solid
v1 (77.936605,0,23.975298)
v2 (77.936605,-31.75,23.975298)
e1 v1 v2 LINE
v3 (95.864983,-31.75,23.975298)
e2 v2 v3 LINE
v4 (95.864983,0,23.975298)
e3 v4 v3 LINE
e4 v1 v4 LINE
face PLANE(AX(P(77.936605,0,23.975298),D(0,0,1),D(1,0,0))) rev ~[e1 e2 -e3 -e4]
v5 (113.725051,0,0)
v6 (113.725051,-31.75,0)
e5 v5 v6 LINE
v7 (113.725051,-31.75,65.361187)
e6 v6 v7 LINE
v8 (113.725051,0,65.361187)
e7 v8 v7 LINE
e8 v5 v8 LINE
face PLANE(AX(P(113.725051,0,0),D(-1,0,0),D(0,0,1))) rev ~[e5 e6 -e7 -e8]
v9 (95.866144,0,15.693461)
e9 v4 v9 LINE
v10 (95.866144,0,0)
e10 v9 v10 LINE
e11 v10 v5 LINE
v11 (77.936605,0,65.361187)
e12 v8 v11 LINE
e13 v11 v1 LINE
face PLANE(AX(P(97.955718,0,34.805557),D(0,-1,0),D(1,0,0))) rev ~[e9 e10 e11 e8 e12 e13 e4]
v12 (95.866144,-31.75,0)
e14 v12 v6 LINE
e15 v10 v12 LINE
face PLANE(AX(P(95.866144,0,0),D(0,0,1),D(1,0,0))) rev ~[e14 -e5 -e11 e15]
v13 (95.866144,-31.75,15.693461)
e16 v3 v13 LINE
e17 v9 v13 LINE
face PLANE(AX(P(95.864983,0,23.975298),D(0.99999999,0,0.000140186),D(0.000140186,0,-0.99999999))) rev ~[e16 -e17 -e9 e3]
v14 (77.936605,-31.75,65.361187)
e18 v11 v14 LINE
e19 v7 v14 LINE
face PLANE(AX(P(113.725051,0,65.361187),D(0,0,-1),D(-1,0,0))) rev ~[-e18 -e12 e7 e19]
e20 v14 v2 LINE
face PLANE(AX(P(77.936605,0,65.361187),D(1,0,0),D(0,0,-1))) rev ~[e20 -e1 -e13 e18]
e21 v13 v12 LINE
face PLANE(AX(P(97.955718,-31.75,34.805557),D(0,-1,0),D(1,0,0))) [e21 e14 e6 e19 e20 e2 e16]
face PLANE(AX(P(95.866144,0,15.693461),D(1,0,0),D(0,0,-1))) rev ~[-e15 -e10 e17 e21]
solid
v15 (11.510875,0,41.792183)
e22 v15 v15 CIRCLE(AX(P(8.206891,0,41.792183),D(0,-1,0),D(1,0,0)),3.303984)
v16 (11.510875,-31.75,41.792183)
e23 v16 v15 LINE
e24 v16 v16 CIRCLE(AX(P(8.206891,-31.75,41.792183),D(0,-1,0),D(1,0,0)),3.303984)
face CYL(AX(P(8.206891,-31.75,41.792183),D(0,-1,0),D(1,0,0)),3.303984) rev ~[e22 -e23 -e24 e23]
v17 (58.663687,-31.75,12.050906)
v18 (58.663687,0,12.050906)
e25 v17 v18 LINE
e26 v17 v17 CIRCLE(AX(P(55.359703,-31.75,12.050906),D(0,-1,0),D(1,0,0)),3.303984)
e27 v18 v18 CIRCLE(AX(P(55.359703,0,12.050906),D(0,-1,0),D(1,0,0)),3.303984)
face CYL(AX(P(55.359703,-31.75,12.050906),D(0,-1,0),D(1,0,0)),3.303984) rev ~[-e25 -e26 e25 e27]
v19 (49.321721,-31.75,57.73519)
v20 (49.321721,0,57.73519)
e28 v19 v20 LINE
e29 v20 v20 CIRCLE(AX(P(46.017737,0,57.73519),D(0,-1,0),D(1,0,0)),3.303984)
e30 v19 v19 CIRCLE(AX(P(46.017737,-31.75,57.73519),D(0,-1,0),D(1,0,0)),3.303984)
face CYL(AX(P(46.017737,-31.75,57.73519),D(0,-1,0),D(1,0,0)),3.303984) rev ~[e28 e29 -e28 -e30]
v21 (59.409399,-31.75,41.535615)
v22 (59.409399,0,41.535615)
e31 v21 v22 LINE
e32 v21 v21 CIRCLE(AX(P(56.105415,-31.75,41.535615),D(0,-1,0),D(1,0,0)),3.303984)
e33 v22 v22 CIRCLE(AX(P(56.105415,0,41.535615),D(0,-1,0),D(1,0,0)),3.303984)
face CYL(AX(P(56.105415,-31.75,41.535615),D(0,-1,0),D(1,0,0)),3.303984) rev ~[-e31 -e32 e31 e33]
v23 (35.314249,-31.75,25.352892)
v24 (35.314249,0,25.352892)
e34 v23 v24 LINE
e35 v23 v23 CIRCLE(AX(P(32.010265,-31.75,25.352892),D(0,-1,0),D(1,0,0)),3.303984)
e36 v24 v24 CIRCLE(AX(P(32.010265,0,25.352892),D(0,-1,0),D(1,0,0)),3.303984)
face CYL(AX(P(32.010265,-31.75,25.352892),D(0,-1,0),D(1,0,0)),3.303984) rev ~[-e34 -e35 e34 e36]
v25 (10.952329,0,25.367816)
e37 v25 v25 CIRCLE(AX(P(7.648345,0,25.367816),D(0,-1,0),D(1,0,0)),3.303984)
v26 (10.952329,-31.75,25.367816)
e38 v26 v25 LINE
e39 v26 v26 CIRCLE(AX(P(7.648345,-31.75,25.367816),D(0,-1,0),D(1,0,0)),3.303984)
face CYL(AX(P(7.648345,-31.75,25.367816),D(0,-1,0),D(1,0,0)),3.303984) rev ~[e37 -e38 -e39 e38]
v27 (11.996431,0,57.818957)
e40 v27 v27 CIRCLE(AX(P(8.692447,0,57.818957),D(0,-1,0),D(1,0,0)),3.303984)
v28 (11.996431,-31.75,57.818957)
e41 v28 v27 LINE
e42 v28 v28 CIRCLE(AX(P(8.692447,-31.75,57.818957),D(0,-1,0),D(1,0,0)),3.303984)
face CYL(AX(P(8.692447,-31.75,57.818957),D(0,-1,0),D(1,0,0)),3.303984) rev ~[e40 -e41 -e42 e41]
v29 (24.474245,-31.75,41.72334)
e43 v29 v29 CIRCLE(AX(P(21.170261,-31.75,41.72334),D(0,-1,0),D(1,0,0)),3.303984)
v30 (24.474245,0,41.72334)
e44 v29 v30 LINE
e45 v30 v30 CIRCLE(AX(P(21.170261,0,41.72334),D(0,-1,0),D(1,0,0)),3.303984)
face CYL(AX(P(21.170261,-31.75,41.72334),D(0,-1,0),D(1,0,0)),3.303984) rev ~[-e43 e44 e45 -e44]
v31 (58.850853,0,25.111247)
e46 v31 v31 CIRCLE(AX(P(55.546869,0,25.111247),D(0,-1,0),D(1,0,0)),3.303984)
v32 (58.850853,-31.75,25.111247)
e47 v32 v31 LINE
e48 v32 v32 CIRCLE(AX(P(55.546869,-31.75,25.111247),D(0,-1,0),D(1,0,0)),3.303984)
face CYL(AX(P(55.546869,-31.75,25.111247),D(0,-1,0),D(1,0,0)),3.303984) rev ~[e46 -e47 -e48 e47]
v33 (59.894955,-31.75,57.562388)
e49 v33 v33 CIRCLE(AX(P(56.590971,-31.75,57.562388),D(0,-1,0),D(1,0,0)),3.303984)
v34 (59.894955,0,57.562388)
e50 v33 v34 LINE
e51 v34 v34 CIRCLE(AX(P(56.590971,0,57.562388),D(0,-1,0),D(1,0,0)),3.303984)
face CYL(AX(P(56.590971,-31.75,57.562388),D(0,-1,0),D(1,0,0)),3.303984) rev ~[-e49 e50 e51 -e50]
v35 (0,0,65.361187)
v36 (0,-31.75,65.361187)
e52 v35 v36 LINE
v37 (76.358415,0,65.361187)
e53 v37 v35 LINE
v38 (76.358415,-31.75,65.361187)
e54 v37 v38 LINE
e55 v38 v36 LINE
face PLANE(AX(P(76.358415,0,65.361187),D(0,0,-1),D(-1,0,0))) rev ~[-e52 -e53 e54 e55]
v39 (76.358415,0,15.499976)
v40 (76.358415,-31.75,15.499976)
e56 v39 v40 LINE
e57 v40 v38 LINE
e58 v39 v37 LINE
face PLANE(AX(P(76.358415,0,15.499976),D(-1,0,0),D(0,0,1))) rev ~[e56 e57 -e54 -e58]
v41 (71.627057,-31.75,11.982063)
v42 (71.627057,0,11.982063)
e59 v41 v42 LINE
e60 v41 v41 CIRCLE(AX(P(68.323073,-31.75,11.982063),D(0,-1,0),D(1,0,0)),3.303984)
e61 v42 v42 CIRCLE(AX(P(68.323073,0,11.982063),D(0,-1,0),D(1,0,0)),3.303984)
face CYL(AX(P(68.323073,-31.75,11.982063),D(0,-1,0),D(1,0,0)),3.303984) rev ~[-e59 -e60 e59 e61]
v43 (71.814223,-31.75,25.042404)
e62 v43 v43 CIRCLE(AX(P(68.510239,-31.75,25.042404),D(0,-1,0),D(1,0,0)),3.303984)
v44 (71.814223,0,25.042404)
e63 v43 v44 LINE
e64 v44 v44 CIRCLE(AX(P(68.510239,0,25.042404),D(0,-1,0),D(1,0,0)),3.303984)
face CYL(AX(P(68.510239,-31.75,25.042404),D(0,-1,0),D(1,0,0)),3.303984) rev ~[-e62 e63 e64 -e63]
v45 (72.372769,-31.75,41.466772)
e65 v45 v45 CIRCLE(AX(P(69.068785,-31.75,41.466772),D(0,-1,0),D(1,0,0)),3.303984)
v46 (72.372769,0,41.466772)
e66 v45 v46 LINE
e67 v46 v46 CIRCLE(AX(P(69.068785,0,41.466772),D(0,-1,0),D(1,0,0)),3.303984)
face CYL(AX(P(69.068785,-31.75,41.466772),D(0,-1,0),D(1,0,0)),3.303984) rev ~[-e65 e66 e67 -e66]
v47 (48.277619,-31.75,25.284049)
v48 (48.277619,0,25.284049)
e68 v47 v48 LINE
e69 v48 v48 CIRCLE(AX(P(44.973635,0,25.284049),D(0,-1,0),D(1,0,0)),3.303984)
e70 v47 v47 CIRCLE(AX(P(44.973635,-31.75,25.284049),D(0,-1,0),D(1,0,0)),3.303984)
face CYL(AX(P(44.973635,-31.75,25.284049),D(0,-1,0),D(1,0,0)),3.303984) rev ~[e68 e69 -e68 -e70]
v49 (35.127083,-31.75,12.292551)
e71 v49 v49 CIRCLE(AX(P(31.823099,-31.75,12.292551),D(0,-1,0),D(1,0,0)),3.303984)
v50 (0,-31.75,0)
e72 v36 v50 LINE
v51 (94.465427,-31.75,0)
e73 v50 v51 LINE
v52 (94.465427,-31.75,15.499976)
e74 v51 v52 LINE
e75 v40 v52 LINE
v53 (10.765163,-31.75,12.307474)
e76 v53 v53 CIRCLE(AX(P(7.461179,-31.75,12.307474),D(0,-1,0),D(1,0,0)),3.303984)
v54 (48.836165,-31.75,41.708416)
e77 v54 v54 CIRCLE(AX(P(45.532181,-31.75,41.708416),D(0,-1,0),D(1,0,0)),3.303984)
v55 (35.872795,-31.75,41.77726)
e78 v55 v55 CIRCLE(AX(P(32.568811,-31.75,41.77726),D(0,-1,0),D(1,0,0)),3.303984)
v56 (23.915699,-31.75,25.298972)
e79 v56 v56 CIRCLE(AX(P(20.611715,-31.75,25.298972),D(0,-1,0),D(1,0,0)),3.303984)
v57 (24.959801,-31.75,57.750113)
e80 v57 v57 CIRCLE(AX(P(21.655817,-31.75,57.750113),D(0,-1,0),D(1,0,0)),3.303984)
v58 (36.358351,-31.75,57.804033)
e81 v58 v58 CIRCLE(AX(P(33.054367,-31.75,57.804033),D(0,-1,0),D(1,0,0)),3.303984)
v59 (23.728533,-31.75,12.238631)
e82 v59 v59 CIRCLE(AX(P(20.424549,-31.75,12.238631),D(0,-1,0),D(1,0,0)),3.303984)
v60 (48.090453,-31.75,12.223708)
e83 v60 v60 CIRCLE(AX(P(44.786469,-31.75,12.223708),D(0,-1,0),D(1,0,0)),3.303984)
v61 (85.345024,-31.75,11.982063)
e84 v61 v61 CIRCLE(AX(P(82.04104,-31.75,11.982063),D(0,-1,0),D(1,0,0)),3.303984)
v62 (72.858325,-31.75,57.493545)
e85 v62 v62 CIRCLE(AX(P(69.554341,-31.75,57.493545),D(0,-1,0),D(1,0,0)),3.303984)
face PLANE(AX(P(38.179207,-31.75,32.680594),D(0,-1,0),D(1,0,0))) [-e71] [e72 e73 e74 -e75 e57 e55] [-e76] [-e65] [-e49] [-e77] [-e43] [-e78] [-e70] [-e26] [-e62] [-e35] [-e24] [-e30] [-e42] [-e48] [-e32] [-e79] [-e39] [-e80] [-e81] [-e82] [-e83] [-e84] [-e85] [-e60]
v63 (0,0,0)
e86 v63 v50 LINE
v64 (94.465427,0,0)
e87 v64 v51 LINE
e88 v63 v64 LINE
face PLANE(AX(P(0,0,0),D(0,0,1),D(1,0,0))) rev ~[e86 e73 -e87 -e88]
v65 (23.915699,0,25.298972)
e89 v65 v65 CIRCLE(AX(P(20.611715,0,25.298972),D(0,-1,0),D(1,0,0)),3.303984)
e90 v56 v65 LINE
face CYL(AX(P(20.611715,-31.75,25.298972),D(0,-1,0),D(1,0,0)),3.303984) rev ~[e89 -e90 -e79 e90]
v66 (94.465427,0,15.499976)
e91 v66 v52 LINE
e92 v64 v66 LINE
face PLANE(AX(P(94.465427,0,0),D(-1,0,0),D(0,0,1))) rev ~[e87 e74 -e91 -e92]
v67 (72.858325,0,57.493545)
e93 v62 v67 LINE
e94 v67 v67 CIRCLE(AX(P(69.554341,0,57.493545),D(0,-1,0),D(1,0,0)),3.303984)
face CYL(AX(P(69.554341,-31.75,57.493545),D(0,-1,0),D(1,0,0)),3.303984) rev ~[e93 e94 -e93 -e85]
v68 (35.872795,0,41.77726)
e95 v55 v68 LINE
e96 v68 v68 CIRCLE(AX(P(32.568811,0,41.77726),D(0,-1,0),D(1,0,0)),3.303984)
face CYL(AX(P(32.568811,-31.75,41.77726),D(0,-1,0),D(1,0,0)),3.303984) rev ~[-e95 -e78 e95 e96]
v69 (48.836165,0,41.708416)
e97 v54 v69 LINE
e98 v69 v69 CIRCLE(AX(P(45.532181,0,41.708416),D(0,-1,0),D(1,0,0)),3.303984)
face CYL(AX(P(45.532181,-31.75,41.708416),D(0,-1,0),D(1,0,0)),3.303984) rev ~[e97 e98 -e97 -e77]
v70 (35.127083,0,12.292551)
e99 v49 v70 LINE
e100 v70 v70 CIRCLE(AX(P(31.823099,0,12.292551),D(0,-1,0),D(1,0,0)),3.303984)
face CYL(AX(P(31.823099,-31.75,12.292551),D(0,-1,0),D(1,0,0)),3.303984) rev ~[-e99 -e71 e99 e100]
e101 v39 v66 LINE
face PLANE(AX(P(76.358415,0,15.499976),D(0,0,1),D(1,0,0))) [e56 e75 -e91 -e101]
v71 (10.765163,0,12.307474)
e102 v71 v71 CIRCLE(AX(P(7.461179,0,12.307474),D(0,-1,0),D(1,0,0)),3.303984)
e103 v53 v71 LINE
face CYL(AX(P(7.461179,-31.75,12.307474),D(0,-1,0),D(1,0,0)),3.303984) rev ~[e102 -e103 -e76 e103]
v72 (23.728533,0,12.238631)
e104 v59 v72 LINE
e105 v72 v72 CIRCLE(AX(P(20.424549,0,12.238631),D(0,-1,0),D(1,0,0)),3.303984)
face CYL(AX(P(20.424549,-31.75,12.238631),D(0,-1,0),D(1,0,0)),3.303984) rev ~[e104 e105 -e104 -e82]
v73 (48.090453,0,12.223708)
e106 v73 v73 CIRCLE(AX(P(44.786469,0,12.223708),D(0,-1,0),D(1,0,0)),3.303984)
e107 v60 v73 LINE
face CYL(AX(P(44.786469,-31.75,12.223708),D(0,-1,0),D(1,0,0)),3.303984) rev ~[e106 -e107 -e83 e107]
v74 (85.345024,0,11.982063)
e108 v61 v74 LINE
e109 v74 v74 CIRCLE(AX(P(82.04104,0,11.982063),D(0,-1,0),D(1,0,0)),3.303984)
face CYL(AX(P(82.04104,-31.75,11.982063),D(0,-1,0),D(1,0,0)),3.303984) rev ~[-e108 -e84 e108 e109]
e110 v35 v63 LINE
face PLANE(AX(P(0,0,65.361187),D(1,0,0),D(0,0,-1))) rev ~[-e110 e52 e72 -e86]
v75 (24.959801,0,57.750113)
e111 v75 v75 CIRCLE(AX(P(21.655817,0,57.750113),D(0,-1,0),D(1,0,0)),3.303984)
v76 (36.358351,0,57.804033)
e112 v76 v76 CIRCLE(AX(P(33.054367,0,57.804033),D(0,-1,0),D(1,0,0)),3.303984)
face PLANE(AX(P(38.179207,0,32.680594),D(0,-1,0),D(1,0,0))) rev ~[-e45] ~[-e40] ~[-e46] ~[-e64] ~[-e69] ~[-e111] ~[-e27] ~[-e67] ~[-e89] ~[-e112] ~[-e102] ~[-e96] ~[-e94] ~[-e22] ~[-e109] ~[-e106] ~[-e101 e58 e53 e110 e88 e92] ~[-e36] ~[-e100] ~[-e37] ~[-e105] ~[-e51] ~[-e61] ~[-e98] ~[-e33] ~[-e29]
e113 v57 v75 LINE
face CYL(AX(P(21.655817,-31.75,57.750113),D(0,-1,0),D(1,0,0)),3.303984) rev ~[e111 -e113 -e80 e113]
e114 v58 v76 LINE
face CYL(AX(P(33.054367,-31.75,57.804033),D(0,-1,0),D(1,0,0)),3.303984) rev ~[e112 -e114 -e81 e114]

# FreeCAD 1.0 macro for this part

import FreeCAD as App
import Part
import Sketcher

V = App.Vector
Q = App.Units.Quantity


def add_polygon(sketch, points):
    """Adds a closed chain of lines whose ends are joined by coincident constraints."""
    first, n = sketch.GeometryCount, len(points)
    for a, b in zip(points, points[1:] + points[:1]):
        sketch.addGeometry(Part.LineSegment(App.Vector(*a, 0), App.Vector(*b, 0)), False)
    for i in range(n):
        sketch.addConstraint(Sketcher.Constraint("Coincident", first + i, 2, first + (i + 1) % n, 1))

doc = App.newDocument("Part")
body = doc.addObject("PartDesign::Body", "Body")

# Sketch on XZ plane
sketch1 = body.newObject("Sketcher::SketchObject", "Sketch")
sketch1.AttachmentSupport = (doc.getObject("XZ_Plane"), [""])
sketch1.MapMode = "FlatFace"
add_polygon(sketch1, [(0, 65), (0, 0), (94, 0), (94, 15), (76, 15), (76, 65)])  # lines 0-5
sketch1.addConstraint([
    Sketcher.Constraint("Vertical", 0),
    Sketcher.Constraint("Horizontal", 1),
    Sketcher.Constraint("Vertical", 2),
    Sketcher.Constraint("Horizontal", 3),
    Sketcher.Constraint("Vertical", 4),
    Sketcher.Constraint("Horizontal", 5),
    Sketcher.Constraint("Coincident", 0, 2, -1, 1),
    Sketcher.Constraint("DistanceY", 4, 1, 4, 2, Q("49.861211 mm")),
    Sketcher.Constraint("DistanceX", 1, 1, 1, 2, Q("94.465427 mm")),
    Sketcher.Constraint("DistanceX", 3, 2, 3, 1, Q("18.107012 mm")),
    Sketcher.Constraint("DistanceY", 0, 2, 0, 1, Q("65.361187 mm")),
])
pad1 = body.newObject("PartDesign::Pad", "Pad")
pad1.Profile = sketch1
pad1.Length = Q("1.25 in")

# Sketch on XZ plane
sketch2 = body.newObject("Sketcher::SketchObject", "Sketch001")
sketch2.AttachmentSupport = (doc.getObject("XZ_Plane"), [""])
sketch2.MapMode = "FlatFace"
sketch2.AttachmentOffset = App.Placement(V(0, 0, 1.25 * 25.4), App.Rotation())
sketch2.addGeometry([
    Part.Circle(V(20.6, 25.3, 0), V(0, 0, 1), 3.3),  # 0
    Part.Circle(V(32, 25.4, 0), V(0, 0, 1), 3.3),  # 1
    Part.Circle(V(45, 25.3, 0), V(0, 0, 1), 3.3),  # 2
    Part.Circle(V(55.5, 25.1, 0), V(0, 0, 1), 3.3),  # 3
    Part.Circle(V(7.5, 12.3, 0), V(0, 0, 1), 3.3),  # 4
    Part.Circle(V(31.8, 12.3, 0), V(0, 0, 1), 3.3),  # 5
    Part.Circle(V(55.4, 12.1, 0), V(0, 0, 1), 3.3),  # 6
    Part.Circle(V(68.5, 25, 0), V(0, 0, 1), 3.3),  # 7
    Part.Circle(V(20.4, 12.2, 0), V(0, 0, 1), 3.3),  # 8
    Part.Circle(V(44.8, 12.2, 0), V(0, 0, 1), 3.3),  # 9
    Part.Circle(V(68.3, 12, 0), V(0, 0, 1), 3.3),  # 10
    Part.Circle(V(7.6, 25.4, 0), V(0, 0, 1), 3.3),  # 11
    Part.Circle(V(69.1, 41.5, 0), V(0, 0, 1), 3.3),  # 12
    Part.Circle(V(56.1, 41.5, 0), V(0, 0, 1), 3.3),  # 13
    Part.Circle(V(45.5, 41.7, 0), V(0, 0, 1), 3.3),  # 14
    Part.Circle(V(32.6, 41.8, 0), V(0, 0, 1), 3.3),  # 15
    Part.Circle(V(21.2, 41.7, 0), V(0, 0, 1), 3.3),  # 16
    Part.Circle(V(8.2, 41.8, 0), V(0, 0, 1), 3.3),  # 17
    Part.Circle(V(69.6, 57.5, 0), V(0, 0, 1), 3.3),  # 18
    Part.Circle(V(56.6, 57.6, 0), V(0, 0, 1), 3.3),  # 19
    Part.Circle(V(46, 57.7, 0), V(0, 0, 1), 3.3),  # 20
    Part.Circle(V(33.1, 57.8, 0), V(0, 0, 1), 3.3),  # 21
    Part.Circle(V(21.7, 57.8, 0), V(0, 0, 1), 3.3),  # 22
    Part.Circle(V(8.7, 57.8, 0), V(0, 0, 1), 3.3),  # 23
    Part.Circle(V(82, 12, 0), V(0, 0, 1), 3.3),  # 24
], False)
sketch2.addConstraint([
    Sketcher.Constraint("Equal", 0, 1),
    Sketcher.Constraint("Equal", 1, 2),
    Sketcher.Constraint("Equal", 2, 3),
    Sketcher.Constraint("Equal", 3, 4),
    Sketcher.Constraint("Equal", 4, 5),
    Sketcher.Constraint("Equal", 5, 6),
    Sketcher.Constraint("Equal", 6, 7),
    Sketcher.Constraint("Equal", 7, 8),
    Sketcher.Constraint("Equal", 8, 9),
    Sketcher.Constraint("Equal", 9, 10),
    Sketcher.Constraint("Equal", 10, 11),
    Sketcher.Constraint("Equal", 11, 12),
    Sketcher.Constraint("Equal", 12, 13),
    Sketcher.Constraint("Equal", 13, 14),
    Sketcher.Constraint("Equal", 14, 15),
    Sketcher.Constraint("Equal", 15, 16),
    Sketcher.Constraint("Equal", 16, 17),
    Sketcher.Constraint("Equal", 17, 18),
    Sketcher.Constraint("Equal", 18, 19),
    Sketcher.Constraint("Equal", 19, 20),
    Sketcher.Constraint("Equal", 20, 21),
    Sketcher.Constraint("Equal", 21, 22),
    Sketcher.Constraint("Equal", 22, 23),
    Sketcher.Constraint("Equal", 23, 24),
    Sketcher.Constraint("Horizontal", 10, 3, 24, 3),
    Sketcher.Constraint("DistanceX", 1, 3, 9, 3, Q("0.5030002 in")),
    Sketcher.Constraint("DistanceX", 3, 3, 10, 3, Q("0.5030002 in")),
    Sketcher.Constraint("DistanceX", 11, 3, 8, 3, Q("0.5030002 in")),
    Sketcher.Constraint("Diameter", 0, Q("6.607968 mm")),
    Sketcher.Constraint("DistanceX", -1, 1, 5, 3, Q("31.823099 mm")),
    Sketcher.Constraint("DistanceY", 6, 3, 7, 3, Q("12.991498 mm")),
    Sketcher.Constraint("DistanceX", 9, 3, 3, 3, Q("10.7604 mm")),
    Sketcher.Constraint("DistanceY", 13, 3, 14, 3, Q("0.172801 mm")),
    Sketcher.Constraint("DistanceX", 7, 3, 18, 3, Q("1.044102 mm")),
    Sketcher.Constraint("DistanceX", 7, 3, 24, 3, Q("13.530801 mm")),
    Sketcher.Constraint("DistanceY", -1, 1, 0, 3, Q("25.298972 mm")),
    Sketcher.Constraint("DistanceY", -1, 1, 2, 3, Q("25.284049 mm")),
    Sketcher.Constraint("DistanceX", -1, 1, 3, 3, Q("55.546869 mm")),
    Sketcher.Constraint("DistanceX", -1, 1, 4, 3, Q("7.461179 mm")),
    Sketcher.Constraint("DistanceY", -1, 1, 5, 3, Q("12.292551 mm")),
    Sketcher.Constraint("DistanceX", -1, 1, 7, 3, Q("68.510239 mm")),
    Sketcher.Constraint("DistanceX", -1, 1, 8, 3, Q("20.424549 mm")),
    Sketcher.Constraint("DistanceY", -1, 1, 8, 3, Q("12.238631 mm")),
    Sketcher.Constraint("DistanceX", -1, 1, 14, 3, Q("45.532181 mm")),
    Sketcher.Constraint("DistanceX", -1, 1, 15, 3, Q("32.568811 mm")),
    Sketcher.Constraint("DistanceY", -1, 1, 15, 3, Q("41.77726 mm")),
    Sketcher.Constraint("DistanceX", -1, 1, 16, 3, Q("21.170261 mm")),
    Sketcher.Constraint("DistanceY", -1, 1, 16, 3, Q("41.72334 mm")),
    Sketcher.Constraint("DistanceX", -1, 1, 17, 3, Q("8.206891 mm")),
    Sketcher.Constraint("DistanceX", -1, 1, 19, 3, Q("56.590971 mm")),
    Sketcher.Constraint("DistanceY", -1, 1, 20, 3, Q("57.73519 mm")),
    Sketcher.Constraint("DistanceX", 0, 3, 1, 3, Q("11.39855 mm")),
    Sketcher.Constraint("DistanceY", 0, 3, 1, 3, Q("0.05392 mm")),
    Sketcher.Constraint("DistanceX", 1, 3, 2, 3, Q("12.96337 mm")),
    Sketcher.Constraint("DistanceY", 4, 3, 1, 3, Q("13.045418 mm")),
    Sketcher.Constraint("DistanceY", 6, 3, 3, 3, Q("13.060341 mm")),
    Sketcher.Constraint("DistanceX", 2, 3, 6, 3, Q("10.386068 mm")),
    Sketcher.Constraint("DistanceY", 9, 3, 2, 3, Q("13.060341 mm")),
    Sketcher.Constraint("DistanceY", 9, 3, 3, 3, Q("12.887539 mm")),
    Sketcher.Constraint("DistanceY", 10, 3, 7, 3, Q("13.060341 mm")),
    Sketcher.Constraint("DistanceX", 2, 3, 12, 3, Q("24.09515 mm")),
    Sketcher.Constraint("DistanceY", 10, 3, 12, 3, Q("29.484709 mm")),
    Sketcher.Constraint("DistanceX", 13, 3, 12, 3, Q("12.96337 mm")),
    Sketcher.Constraint("DistanceY", 3, 3, 13, 3, Q("16.424368 mm")),
    Sketcher.Constraint("DistanceY", 0, 3, 17, 3, Q("16.493211 mm")),
    Sketcher.Constraint("DistanceY", 13, 3, 18, 3, Q("15.95793 mm")),
    Sketcher.Constraint("DistanceY", 14, 3, 19, 3, Q("15.853972 mm")),
    Sketcher.Constraint("DistanceX", 20, 3, 13, 3, Q("10.087678 mm")),
    Sketcher.Constraint("DistanceX", 21, 3, 20, 3, Q("12.96337 mm")),
    Sketcher.Constraint("DistanceX", 22, 3, 21, 3, Q("11.39855 mm")),
    Sketcher.Constraint("DistanceY", 22, 3, 21, 3, Q("0.05392 mm")),
    Sketcher.Constraint("DistanceY", 17, 3, 22, 3, Q("15.95793 mm")),
    Sketcher.Constraint("DistanceX", 23, 3, 22, 3, Q("12.96337 mm")),
    Sketcher.Constraint("DistanceY", -1, 1, 11, 3, Q("25.367816 mm")),
    Sketcher.Constraint("DistanceY", -1, 1, 23, 3, Q("57.818957 mm")),
])
pocket1 = body.newObject("PartDesign::Pocket", "Pocket")
pocket1.Profile = sketch2
pocket1.Length = Q("1.48 in")
body2 = doc.addObject("PartDesign::Body", "Body001")

# Sketch on XZ plane
sketch3 = body2.newObject("Sketcher::SketchObject", "Sketch002")
sketch3.AttachmentSupport = (doc.getObject("XZ_Plane001"), [""])
sketch3.MapMode = "FlatFace"
add_polygon(sketch3, [(96, 16), (96, 0), (114, 0), (114, 65), (78, 65), (78, 24), (96, 24)])  # lines 0-6
sketch3.addConstraint([
    Sketcher.Constraint("Vertical", 0),
    Sketcher.Constraint("Horizontal", 1),
    Sketcher.Constraint("Vertical", 2),
    Sketcher.Constraint("Horizontal", 3),
    Sketcher.Constraint("Vertical", 4),
    Sketcher.Constraint("Horizontal", 5),
    Sketcher.Constraint("PointOnObject", 0, 2, -1),
    Sketcher.Constraint("DistanceY", 0, 2, 0, 1, Q("15.693461 mm")),
    Sketcher.Constraint("DistanceY", 4, 2, 4, 1, Q("41.385889 mm")),
    Sketcher.Constraint("DistanceX", 1, 1, 1, 2, Q("17.858907 mm")),
    Sketcher.Constraint("DistanceX", 3, 2, 3, 1, Q("35.788446 mm")),
    Sketcher.Constraint("DistanceX", 5, 1, 5, 2, Q("17.928378 mm")),
    Sketcher.Constraint("DistanceY", 2, 1, 2, 2, Q("65.361187 mm")),
    Sketcher.Constraint("DistanceX", -1, 1, 1, 2, Q("113.725051 mm")),
])
pad2 = body2.newObject("PartDesign::Pad", "Pad001")
pad2.Profile = sketch3
pad2.Length = Q("1.25 in")

doc.recompute()
